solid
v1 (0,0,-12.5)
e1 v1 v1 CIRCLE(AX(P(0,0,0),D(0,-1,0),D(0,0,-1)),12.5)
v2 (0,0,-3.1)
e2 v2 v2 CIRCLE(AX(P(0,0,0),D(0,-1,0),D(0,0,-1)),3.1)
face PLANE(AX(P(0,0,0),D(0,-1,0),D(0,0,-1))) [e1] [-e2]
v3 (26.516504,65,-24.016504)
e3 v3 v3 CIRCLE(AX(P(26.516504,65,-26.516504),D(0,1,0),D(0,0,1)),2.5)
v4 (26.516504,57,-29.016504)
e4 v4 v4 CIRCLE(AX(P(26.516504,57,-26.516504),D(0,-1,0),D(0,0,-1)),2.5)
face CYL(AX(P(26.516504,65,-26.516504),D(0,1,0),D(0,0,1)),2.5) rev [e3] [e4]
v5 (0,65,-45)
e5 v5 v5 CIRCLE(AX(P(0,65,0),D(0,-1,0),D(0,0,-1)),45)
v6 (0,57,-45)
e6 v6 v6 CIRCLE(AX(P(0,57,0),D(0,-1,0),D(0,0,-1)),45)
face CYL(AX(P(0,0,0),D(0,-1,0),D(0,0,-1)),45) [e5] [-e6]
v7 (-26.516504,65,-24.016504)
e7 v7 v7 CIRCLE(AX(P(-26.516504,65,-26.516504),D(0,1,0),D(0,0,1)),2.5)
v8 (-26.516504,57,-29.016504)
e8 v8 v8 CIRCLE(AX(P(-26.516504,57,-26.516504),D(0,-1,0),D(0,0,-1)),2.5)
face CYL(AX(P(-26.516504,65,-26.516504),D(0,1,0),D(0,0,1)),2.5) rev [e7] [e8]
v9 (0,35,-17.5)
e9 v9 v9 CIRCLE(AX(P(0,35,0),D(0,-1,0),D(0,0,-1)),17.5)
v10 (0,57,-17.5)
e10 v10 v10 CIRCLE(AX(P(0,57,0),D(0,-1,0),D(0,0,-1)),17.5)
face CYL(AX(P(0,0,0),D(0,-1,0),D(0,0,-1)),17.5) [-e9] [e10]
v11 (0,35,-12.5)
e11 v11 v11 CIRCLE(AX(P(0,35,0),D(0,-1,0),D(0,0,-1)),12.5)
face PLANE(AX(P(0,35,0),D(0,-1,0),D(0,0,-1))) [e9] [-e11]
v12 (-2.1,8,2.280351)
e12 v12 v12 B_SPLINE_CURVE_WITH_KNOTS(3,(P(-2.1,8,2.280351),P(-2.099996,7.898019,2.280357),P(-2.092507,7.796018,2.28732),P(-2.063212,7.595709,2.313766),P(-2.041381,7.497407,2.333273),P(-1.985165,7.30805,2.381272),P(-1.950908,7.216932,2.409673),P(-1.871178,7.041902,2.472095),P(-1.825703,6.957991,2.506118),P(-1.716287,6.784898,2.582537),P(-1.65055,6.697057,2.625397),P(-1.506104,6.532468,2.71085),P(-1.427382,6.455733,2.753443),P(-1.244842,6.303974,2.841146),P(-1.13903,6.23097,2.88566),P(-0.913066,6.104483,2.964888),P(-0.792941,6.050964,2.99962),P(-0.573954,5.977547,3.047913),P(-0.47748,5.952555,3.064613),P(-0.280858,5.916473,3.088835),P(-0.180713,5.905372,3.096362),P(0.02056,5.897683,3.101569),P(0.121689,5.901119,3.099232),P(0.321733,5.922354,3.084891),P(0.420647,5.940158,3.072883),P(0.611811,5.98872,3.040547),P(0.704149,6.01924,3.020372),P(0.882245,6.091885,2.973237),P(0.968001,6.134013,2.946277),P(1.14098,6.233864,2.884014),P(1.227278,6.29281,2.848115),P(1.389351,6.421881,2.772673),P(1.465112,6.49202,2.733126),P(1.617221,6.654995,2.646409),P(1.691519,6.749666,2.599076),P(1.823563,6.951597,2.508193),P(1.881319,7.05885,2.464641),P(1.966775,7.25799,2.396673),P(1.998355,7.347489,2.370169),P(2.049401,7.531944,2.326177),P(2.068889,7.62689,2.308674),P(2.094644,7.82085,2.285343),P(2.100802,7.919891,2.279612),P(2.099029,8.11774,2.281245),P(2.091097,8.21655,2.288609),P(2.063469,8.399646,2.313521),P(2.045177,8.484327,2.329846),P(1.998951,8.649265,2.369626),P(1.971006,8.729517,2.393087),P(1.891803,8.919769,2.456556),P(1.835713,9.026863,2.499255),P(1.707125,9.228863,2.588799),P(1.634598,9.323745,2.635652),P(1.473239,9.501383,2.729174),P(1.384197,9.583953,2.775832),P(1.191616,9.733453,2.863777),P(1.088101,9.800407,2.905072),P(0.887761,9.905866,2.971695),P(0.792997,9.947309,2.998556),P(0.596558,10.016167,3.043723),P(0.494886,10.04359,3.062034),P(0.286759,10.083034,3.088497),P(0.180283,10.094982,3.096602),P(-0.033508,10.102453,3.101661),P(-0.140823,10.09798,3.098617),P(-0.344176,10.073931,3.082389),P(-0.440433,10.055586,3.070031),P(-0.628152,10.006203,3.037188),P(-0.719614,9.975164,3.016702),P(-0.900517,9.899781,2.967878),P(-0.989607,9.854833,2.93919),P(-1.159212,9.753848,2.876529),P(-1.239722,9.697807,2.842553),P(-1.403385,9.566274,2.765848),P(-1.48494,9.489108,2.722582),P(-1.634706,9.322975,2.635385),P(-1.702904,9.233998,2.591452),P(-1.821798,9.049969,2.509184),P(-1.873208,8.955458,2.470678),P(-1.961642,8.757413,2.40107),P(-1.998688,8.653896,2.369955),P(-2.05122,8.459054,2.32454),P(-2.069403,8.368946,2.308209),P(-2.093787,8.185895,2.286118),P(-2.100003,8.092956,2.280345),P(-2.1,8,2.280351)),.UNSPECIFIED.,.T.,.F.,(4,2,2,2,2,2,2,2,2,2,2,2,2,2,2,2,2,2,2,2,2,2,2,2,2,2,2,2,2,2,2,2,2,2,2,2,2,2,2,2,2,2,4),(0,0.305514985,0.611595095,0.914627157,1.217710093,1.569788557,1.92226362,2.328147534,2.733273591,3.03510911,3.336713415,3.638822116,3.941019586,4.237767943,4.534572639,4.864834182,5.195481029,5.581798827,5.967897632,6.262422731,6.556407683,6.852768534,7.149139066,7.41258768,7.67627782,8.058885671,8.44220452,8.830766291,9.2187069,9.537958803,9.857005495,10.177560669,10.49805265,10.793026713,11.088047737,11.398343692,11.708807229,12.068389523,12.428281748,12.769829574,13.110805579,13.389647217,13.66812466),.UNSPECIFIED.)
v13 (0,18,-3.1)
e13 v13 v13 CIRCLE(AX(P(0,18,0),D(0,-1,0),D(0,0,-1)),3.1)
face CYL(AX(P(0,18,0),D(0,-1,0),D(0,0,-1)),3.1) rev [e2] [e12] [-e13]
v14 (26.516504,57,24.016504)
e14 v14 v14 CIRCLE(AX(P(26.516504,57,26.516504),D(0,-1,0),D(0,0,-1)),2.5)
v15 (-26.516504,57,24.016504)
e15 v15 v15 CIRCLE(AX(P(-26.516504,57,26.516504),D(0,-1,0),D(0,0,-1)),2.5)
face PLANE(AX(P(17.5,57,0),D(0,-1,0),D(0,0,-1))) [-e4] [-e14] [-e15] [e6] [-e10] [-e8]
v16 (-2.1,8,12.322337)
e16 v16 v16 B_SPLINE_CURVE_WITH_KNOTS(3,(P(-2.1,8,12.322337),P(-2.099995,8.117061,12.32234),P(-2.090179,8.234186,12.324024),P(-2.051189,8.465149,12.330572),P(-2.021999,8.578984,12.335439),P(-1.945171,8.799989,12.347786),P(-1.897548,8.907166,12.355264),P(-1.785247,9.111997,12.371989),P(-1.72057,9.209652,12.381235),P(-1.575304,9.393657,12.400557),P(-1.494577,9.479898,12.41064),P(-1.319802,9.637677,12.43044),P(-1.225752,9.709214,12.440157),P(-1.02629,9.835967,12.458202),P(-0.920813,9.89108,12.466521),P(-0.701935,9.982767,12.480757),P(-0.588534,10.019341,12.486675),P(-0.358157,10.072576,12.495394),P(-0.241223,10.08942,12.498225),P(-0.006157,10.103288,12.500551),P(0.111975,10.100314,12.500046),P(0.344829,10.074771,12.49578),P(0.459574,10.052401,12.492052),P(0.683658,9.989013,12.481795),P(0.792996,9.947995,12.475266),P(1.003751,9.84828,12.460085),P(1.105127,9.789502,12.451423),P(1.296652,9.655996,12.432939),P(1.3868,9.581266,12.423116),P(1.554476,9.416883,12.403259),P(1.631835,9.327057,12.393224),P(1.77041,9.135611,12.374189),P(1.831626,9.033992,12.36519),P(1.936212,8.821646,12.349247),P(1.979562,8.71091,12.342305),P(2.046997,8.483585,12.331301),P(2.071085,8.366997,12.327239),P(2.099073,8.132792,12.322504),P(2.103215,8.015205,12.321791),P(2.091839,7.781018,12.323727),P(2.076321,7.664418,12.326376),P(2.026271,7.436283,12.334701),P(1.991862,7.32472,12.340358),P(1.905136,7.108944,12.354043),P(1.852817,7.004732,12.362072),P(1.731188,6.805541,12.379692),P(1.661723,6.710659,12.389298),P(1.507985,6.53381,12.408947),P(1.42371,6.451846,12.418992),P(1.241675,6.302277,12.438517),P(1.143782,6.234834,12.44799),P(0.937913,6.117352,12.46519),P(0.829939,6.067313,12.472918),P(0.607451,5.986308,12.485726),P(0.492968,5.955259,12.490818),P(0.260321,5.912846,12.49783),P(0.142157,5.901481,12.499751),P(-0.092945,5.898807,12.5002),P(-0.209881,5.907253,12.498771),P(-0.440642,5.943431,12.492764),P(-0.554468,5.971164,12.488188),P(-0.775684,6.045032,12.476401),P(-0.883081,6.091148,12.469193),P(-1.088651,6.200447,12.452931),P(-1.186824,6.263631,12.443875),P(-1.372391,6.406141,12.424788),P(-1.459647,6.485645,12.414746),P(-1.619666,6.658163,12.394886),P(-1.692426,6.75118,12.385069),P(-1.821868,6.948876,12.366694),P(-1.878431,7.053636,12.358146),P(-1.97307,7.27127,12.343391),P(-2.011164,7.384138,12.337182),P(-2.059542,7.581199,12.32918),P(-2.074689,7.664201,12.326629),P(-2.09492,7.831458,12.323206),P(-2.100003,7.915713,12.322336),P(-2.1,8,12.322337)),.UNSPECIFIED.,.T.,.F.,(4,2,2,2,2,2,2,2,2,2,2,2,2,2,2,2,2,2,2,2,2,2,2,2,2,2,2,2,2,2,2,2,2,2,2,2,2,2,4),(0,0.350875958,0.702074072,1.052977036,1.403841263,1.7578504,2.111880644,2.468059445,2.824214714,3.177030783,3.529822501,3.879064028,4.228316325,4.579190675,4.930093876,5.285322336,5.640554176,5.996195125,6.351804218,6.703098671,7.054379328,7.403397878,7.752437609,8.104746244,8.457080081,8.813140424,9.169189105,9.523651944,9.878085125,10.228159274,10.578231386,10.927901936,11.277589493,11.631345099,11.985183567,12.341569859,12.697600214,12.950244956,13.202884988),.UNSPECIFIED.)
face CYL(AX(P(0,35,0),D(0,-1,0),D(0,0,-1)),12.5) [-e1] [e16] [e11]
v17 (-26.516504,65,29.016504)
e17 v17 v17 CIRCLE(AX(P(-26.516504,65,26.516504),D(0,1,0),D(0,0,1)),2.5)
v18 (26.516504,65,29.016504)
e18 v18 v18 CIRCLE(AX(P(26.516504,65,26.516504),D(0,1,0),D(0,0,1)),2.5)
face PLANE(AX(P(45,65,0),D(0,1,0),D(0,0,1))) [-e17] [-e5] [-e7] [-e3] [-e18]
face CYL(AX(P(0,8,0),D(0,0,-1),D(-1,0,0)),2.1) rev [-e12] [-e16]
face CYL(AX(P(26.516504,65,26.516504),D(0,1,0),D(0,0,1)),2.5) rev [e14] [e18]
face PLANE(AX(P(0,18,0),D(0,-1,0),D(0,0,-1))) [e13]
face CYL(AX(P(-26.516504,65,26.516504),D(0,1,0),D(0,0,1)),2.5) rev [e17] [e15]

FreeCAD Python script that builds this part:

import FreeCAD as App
import Part
import Sketcher


def add_polygon(sketch, points):
    """Adds a closed chain of lines whose ends are joined by coincident constraints."""
    first, n = sketch.GeometryCount, len(points)
    for a, b in zip(points, points[1:] + points[:1]):
        sketch.addGeometry(Part.LineSegment(App.Vector(*a, 0), App.Vector(*b, 0)), False)
    for i in range(n):
        sketch.addConstraint(Sketcher.Constraint("Coincident", first + i, 2, first + (i + 1) % n, 1))

doc = App.newDocument("Part")
body = doc.addObject("PartDesign::Body", "Body")

# Sketch on XY plane
sketch1 = body.newObject("Sketcher::SketchObject", "Sketch")
sketch1.AttachmentSupport = (doc.getObject("XY_Plane"), [""])
sketch1.MapMode = "FlatFace"
add_polygon(sketch1, [(0, 65), (0, 0), (18, 0), (18, 57), (45, 57), (45, 65)])  # lines 0-5
sketch1.addConstraint(Sketcher.Constraint("Vertical", 0))
sketch1.addConstraint(Sketcher.Constraint("Horizontal", 1))
sketch1.addConstraint(Sketcher.Constraint("Vertical", 2))
sketch1.addConstraint(Sketcher.Constraint("Horizontal", 3))
sketch1.addConstraint(Sketcher.Constraint("Vertical", 4))
sketch1.addConstraint(Sketcher.Constraint("Horizontal", 5))
sketch1.addConstraint(Sketcher.Constraint("Coincident", 0, 2, -1, 1))
sketch1.addConstraint(Sketcher.Constraint("DistanceX", 5, 2, 5, 1, 45.0))
sketch1.addConstraint(Sketcher.Constraint("DistanceY", 0, 2, 0, 1, 65.0))
sketch1.addConstraint(Sketcher.Constraint("DistanceY", 2, 1, 2, 2, 57.0))
sketch1.addConstraint(Sketcher.Constraint("DistanceX", 1, 1, 1, 2, 17.5))
revolution = body.newObject("PartDesign::Revolution", "Revolution")
revolution.Profile = sketch1
revolution.ReferenceAxis = (sketch1, ["V_Axis"])
revolution.Angle = 360

# Sketch on XZ plane
sketch2 = body.newObject("Sketcher::SketchObject", "Sketch001")
sketch2.AttachmentSupport = (doc.getObject("XZ_Plane"), [""])
sketch2.MapMode = "FlatFace"
sketch2.AttachmentOffset = App.Placement(App.Vector(0, 0, -65), App.Rotation())
sketch2.addGeometry(Part.Circle(App.Vector(26.5, -26.5, 0), App.Vector(0, 0, 1), 2.5), False)
sketch2.addGeometry(Part.Circle(App.Vector(-26.5, 26.5, 0), App.Vector(0, 0, 1), 2.5), False)
sketch2.addGeometry(Part.Circle(App.Vector(-26.5, -26.5, 0), App.Vector(0, 0, 1), 2.5), False)
sketch2.addGeometry(Part.Circle(App.Vector(26.5, 26.5, 0), App.Vector(0, 0, 1), 2.5), False)
sketch2.addConstraint(Sketcher.Constraint("Equal", 0, 1))
sketch2.addConstraint(Sketcher.Constraint("Equal", 1, 2))
sketch2.addConstraint(Sketcher.Constraint("Equal", 2, 3))
sketch2.addConstraint(Sketcher.Constraint("Symmetric", 0, 3, 1, 3, -1, 1))
sketch2.addConstraint(Sketcher.Constraint("Symmetric", 2, 3, 3, 3, -1, 1))
sketch2.addConstraint(Sketcher.Constraint("Symmetric", 0, 3, 2, 3, -2))
sketch2.addConstraint(Sketcher.Constraint("Diameter", 0, 5.0))
sketch2.addConstraint(Sketcher.Constraint("DistanceX", 1, 3, 0, 3, 53.033009))
sketch2.addConstraint(Sketcher.Constraint("DistanceY", 0, 3, 1, 3, 53.033009))
doc.recompute()
hole = body.newObject("PartDesign::Hole", "Hole")
hole.Profile = sketch2
hole.ThreadType = "None"
hole.Diameter = 5
hole.DepthType = "ThroughAll"
hole.Reversed = True

# Sketch on XZ plane
sketch3 = body.newObject("Sketcher::SketchObject", "Sketch002")
sketch3.AttachmentSupport = (doc.getObject("XZ_Plane"), [""])
sketch3.MapMode = "FlatFace"
sketch3.addGeometry(Part.Circle(App.Vector(0, 0, 0), App.Vector(0, 0, 1), 3.1), False)
sketch3.addConstraint(Sketcher.Constraint("Coincident", 0, 3, -1, 1))
sketch3.addConstraint(Sketcher.Constraint("Diameter", 0, 6.2))
pocket1 = body.newObject("PartDesign::Pocket", "Pocket")
pocket1.Profile = sketch3
pocket1.Length = 18

# Sketch on YZ plane
sketch4 = body.newObject("Sketcher::SketchObject", "Sketch003")
sketch4.AttachmentSupport = (doc.getObject("YZ_Plane"), [""])
sketch4.MapMode = "FlatFace"
add_polygon(sketch4, [(8, 45), (8, 0), (10.1, 0), (10.1, 45)])  # lines 0-3
sketch4.addGeometry(Part.LineSegment(App.Vector(8, 0, 0), App.Vector(8, 45, 0)), True)  # axis
sketch4.addConstraint(Sketcher.Constraint("Vertical", 0))
sketch4.addConstraint(Sketcher.Constraint("Horizontal", 1))
sketch4.addConstraint(Sketcher.Constraint("Vertical", 2))
sketch4.addConstraint(Sketcher.Constraint("Horizontal", 3))
sketch4.addConstraint(Sketcher.Constraint("Vertical", 4))
sketch4.addConstraint(Sketcher.Constraint("Coincident", 4, 1, 0, 2))
sketch4.addConstraint(Sketcher.Constraint("PointOnObject", 0, 2, -1))
sketch4.addConstraint(Sketcher.Constraint("Horizontal", 2, 2, 4, 2))
sketch4.addConstraint(Sketcher.Constraint("DistanceY", 0, 2, 0, 1, 45.0))
sketch4.addConstraint(Sketcher.Constraint("DistanceX", 1, 1, 1, 2, 2.1))
sketch4.addConstraint(Sketcher.Constraint("DistanceX", -1, 1, 0, 2, 8.0))
groove = body.newObject("PartDesign::Groove", "Groove")
groove.Profile = sketch4
groove.ReferenceAxis = (sketch4, ["Axis0"])
groove.Angle = 360

# Sketch on XZ plane
sketch5 = body.newObject("Sketcher::SketchObject", "Sketch004")
sketch5.AttachmentSupport = (doc.getObject("XZ_Plane"), [""])
sketch5.MapMode = "FlatFace"
sketch5.addGeometry(Part.Circle(App.Vector(0, 0, 0), App.Vector(0, 0, 1), 18), False)
sketch5.addGeometry(Part.Circle(App.Vector(0, 0, 0), App.Vector(0, 0, 1), 12), False)
sketch5.addConstraint(Sketcher.Constraint("Coincident", 0, 3, -1, 1))
sketch5.addConstraint(Sketcher.Constraint("Coincident", 1, 3, -1, 1))
sketch5.addConstraint(Sketcher.Constraint("Diameter", 0, 35.0))
sketch5.addConstraint(Sketcher.Constraint("Diameter", 1, 25.0))
pocket2 = body.newObject("PartDesign::Pocket", "Pocket001")
pocket2.Profile = sketch5
pocket2.Length = 35

doc.recompute()
